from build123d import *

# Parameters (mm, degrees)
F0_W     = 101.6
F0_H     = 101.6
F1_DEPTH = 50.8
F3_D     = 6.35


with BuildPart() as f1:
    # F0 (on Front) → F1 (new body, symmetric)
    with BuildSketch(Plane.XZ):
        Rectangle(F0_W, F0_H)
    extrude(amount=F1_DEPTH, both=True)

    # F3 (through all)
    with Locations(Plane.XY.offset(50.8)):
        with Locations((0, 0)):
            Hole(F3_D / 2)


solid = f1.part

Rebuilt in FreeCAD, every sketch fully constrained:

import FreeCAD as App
import Part
import Sketcher

V = App.Vector
Q = App.Units.Quantity

doc = App.newDocument("Part")
params = doc.addObject("Spreadsheet::Sheet", "Params")
for row, (alias, value) in enumerate([
    ("sketch1_width", "4 in"),
    ("pad1_length", "4 in"),
    ("sketch2_diameter", "0.25 in"),
    ("hole_diameter", "0.25 in"),
], start=1):
    params.set(f"A{row}", alias)
    params.set(f"B{row}", "=" + value)
    params.setAlias(f"B{row}", alias)

body = doc.addObject("PartDesign::Body", "Body")

# Sketch on XZ plane
sketch1 = body.newObject("Sketcher::SketchObject", "Sketch")
sketch1.AttachmentSupport = (doc.getObject("XZ_Plane"), [""])
sketch1.MapMode = "FlatFace"
sketch1.addGeometry([
    Part.LineSegment(V(-50.8, 50.8, 0), V(-50.8, -50.8, 0)),
    Part.LineSegment(V(-50.8, -50.8, 0), V(50.8, -50.8, 0)),
    Part.LineSegment(V(50.8, -50.8, 0), V(50.8, 50.8, 0)),
    Part.LineSegment(V(50.8, 50.8, 0), V(-50.8, 50.8, 0)),
], False)
sketch1.addConstraint([
    Sketcher.Constraint("Coincident", 0, 2, 1, 1),
    Sketcher.Constraint("Coincident", 1, 2, 2, 1),
    Sketcher.Constraint("Coincident", 2, 2, 3, 1),
    Sketcher.Constraint("Coincident", 3, 2, 0, 1),
    Sketcher.Constraint("Vertical", 0),
    Sketcher.Constraint("Horizontal", 1),
    Sketcher.Constraint("Vertical", 2),
    Sketcher.Constraint("Horizontal", 3),
    Sketcher.Constraint("Symmetric", 0, 2, 2, 2, -1, 1),
    Sketcher.Constraint("Equal", 3, 0),
    Sketcher.Constraint("DistanceX", 1, 1, 1, 2, Q("4 in")),
])
sketch1.setExpression("Constraints[10]", "Params.sketch1_width")
pad1 = body.newObject("PartDesign::Pad", "Pad")
pad1.Profile = sketch1
pad1.setExpression("Length", "Params.pad1_length")
pad1.Midplane = True

# Sketch on XY plane
sketch2 = body.newObject("Sketcher::SketchObject", "Sketch001")
sketch2.AttachmentSupport = (doc.getObject("XY_Plane"), [""])
sketch2.MapMode = "FlatFace"
sketch2.AttachmentOffset = App.Placement(V(0, 0, 2 * 25.4), App.Rotation())
sketch2.addGeometry(Part.Circle(V(0, 0, 0), V(0, 0, 1), 3.175), False)
sketch2.addConstraint([
    Sketcher.Constraint("Coincident", 0, 3, -1, 1),
    Sketcher.Constraint("Diameter", 0, Q("0.25 in")),
])
sketch2.setExpression("Constraints[1]", "Params.sketch2_diameter")
doc.recompute()
hole = body.newObject("PartDesign::Hole", "Hole")
hole.Profile = sketch2
hole.ThreadType = "None"
hole.setExpression("Diameter", "Params.hole_diameter")
hole.DepthType = "ThroughAll"

doc.recompute()
